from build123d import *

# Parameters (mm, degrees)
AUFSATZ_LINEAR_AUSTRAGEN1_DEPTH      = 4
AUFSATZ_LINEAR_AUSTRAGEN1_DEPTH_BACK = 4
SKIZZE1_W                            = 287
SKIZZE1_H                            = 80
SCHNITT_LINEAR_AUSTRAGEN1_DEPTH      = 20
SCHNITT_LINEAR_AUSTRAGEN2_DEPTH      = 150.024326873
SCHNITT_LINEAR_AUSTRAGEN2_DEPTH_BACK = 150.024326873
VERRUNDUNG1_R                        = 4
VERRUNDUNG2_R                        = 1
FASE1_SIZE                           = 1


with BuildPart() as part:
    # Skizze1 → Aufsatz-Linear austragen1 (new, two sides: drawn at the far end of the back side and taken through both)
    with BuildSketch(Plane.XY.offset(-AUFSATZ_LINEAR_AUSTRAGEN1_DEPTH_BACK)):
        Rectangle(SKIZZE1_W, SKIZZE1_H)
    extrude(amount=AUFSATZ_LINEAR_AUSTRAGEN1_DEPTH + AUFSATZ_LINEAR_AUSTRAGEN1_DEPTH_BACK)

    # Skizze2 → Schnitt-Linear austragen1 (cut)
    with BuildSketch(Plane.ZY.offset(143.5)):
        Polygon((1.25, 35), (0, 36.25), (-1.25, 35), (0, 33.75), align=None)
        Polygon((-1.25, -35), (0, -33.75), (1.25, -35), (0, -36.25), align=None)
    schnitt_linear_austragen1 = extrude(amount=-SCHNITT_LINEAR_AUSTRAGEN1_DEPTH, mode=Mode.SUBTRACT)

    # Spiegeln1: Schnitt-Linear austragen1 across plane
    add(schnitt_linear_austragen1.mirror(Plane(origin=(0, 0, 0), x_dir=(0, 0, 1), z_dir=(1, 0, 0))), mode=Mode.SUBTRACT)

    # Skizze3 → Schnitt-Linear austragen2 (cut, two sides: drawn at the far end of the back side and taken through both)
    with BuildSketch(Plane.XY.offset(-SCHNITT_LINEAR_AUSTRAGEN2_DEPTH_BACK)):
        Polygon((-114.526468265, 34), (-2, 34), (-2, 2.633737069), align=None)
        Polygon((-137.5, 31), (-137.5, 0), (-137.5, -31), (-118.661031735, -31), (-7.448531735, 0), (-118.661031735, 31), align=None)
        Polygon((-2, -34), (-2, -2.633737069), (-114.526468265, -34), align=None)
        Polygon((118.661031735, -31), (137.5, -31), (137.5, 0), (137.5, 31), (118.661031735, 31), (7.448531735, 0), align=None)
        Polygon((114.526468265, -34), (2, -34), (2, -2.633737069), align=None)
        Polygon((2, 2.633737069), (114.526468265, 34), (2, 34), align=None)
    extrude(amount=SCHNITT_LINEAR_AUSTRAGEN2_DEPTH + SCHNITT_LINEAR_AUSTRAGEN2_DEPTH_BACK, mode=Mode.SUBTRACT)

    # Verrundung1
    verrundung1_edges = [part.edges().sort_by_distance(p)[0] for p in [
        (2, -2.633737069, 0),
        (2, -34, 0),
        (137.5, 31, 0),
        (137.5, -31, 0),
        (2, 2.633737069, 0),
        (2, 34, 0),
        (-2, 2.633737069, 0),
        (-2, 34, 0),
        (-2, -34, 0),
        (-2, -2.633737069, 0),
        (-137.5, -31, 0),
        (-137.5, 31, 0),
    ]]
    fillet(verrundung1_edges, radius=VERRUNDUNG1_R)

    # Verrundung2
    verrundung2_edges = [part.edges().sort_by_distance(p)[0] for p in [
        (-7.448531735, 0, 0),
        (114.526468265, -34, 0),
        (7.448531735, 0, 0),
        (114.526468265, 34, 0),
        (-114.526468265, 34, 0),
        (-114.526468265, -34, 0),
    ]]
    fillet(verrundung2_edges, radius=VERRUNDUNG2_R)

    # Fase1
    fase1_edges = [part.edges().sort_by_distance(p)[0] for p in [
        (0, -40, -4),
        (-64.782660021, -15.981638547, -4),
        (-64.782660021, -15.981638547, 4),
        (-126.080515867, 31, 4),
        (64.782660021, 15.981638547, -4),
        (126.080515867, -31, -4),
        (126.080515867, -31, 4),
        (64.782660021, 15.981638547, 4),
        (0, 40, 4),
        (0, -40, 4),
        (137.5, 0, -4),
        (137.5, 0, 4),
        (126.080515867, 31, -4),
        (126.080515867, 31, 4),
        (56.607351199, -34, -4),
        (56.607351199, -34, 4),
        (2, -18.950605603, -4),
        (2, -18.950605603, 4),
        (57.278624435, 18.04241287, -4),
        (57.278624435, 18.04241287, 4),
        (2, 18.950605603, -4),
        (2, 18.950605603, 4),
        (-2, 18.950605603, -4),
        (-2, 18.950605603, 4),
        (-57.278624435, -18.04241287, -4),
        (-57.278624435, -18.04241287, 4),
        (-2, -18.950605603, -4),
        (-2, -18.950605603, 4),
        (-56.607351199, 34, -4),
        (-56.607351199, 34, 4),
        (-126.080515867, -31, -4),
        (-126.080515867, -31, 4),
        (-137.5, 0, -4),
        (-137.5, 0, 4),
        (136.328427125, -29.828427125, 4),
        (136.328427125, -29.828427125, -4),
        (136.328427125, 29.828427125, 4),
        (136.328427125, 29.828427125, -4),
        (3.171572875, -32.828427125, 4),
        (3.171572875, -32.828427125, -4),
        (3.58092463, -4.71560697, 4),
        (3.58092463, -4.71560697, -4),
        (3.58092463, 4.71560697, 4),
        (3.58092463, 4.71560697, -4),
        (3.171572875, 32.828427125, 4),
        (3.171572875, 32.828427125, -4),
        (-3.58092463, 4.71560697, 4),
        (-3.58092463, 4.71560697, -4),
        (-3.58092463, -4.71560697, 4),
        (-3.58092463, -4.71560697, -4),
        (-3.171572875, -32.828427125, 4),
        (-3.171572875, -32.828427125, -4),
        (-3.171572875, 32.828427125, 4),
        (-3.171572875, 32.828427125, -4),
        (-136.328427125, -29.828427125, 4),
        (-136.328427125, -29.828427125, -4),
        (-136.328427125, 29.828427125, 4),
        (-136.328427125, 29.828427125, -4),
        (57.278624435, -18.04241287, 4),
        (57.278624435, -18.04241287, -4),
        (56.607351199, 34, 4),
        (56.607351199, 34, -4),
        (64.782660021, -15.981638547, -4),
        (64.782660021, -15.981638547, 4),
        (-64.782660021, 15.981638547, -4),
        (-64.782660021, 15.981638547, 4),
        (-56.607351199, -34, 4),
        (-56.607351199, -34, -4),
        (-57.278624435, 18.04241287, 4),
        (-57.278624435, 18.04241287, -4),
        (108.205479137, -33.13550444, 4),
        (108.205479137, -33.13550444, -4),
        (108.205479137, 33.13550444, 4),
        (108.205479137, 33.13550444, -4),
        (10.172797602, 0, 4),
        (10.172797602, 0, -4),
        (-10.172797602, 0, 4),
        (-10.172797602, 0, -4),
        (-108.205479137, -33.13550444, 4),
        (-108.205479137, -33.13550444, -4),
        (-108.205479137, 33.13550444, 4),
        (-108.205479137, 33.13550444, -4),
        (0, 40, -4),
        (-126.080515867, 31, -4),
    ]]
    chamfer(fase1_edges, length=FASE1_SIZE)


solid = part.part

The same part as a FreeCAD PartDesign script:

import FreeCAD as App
import Part
import Sketcher
from FreeCAD import Vector
Q = App.Units.Quantity


def edges_at(feature, points):
    """Names of the edges that pass closest to the given points."""
    edges = feature.Shape.Edges
    near = lambda p: min(range(len(edges)), key=lambda i: edges[i].distToShape(Part.Vertex(*p))[0])
    return sorted({f"Edge{near(p) + 1}" for p in points})


def add_polygon(sketch, points):
    """Adds a closed chain of lines whose ends are joined by coincident constraints."""
    first, n = sketch.GeometryCount, len(points)
    for a, b in zip(points, points[1:] + points[:1]):
        sketch.addGeometry(Part.LineSegment(App.Vector(*a, 0), App.Vector(*b, 0)), False)
    for i in range(n):
        sketch.addConstraint(Sketcher.Constraint("Coincident", first + i, 2, first + (i + 1) % n, 1))

doc = App.newDocument("Part")
params = doc.addObject("Spreadsheet::Sheet", "Params")
for row, (alias, value) in enumerate([
    ("sketch1_width", "287 mm"),
    ("sketch1_height", "80 mm"),
    ("pad1_length", "4 mm"),
    ("pad1_length2", "4 mm"),
    ("pocket1_length", "20 mm"),
    ("sketch3_height", "62 mm"),
    ("fillet_radius", "4 mm"),
    ("fillet2_radius", "1 mm"),
    ("chamfer_size", "1 mm"),
], start=1):
    params.set(f"A{row}", alias)
    params.set(f"B{row}", "=" + value)
    params.setAlias(f"B{row}", alias)

body = doc.addObject("PartDesign::Body", "Body")

sketch1 = body.newObject("Sketcher::SketchObject", "Sketch")
sketch1.AttachmentSupport = (doc.getObject("XY_Plane"), [""])
sketch1.MapMode = "FlatFace"
add_polygon(sketch1, [(-144, 40), (-144, -40), (144, -40), (144, 40)])
sketch1.addConstraint([
    Sketcher.Constraint("Vertical", 0),
    Sketcher.Constraint("Horizontal", 1),
    Sketcher.Constraint("Vertical", 2),
    Sketcher.Constraint("Horizontal", 3),
    Sketcher.Constraint("Symmetric", 0, 2, 2, 2, -1, 1),
    Sketcher.Constraint("DistanceX", 1, 1, 1, 2, Q("287 mm")),
    Sketcher.Constraint("DistanceY", 0, 2, 0, 1, Q("80 mm")),
])
sketch1.setExpression("Constraints[9]", "Params.sketch1_width")
sketch1.setExpression("Constraints[10]", "Params.sketch1_height")
pad1 = body.newObject("PartDesign::Pad", "Pad")
pad1.Profile = sketch1
pad1.Type = "TwoLengths"
pad1.setExpression("Length", "Params.pad1_length")
pad1.setExpression("Length2", "Params.pad1_length2")

sketch2 = body.newObject("Sketcher::SketchObject", "Sketch001")
sketch2.AttachmentSupport = (doc.getObject("YZ_Plane"), [""])
sketch2.MapMode = "FlatFace"
sketch2.AttachmentOffset = App.Placement(Vector(0, 0, -143.5), App.Rotation())
add_polygon(sketch2, [(35, 1.2), (36.2, 0), (35, -1.2), (33.8, 0)])
add_polygon(sketch2, [(-33.8, 0), (-35, -1.2), (-36.2, 0), (-35, 1.2)])
sketch2.addConstraint([
    Sketcher.Constraint("Symmetric", 3, 2, 4, 2, -1, 1),
    Sketcher.Constraint("Symmetric", 0, 2, 5, 2, -1, 1),
    Sketcher.Constraint("Symmetric", 1, 2, 6, 2, -1, 1),
    Sketcher.Constraint("Symmetric", 2, 2, 7, 2, -1, 1),
    Sketcher.Constraint("Symmetric", 1, 2, 4, 2, -2),
    Sketcher.Constraint("PointOnObject", 0, 2, -1),
    Sketcher.Constraint("PointOnObject", 2, 2, -1),
    Sketcher.Constraint("Perpendicular", 0, 1),
    Sketcher.Constraint("Perpendicular", 1, 2),
    Sketcher.Constraint("DistanceX", -1, 1, 1, 2, Q("35 mm")),
    Sketcher.Constraint("DistanceX", 2, 2, 0, 2, Q("2.5 mm")),
])
pocket1 = body.newObject("PartDesign::Pocket", "Pocket")
pocket1.Profile = sketch2
pocket1.setExpression("Length", "Params.pocket1_length")
pocket1.Reversed = True
doc.recompute()

mirrored = body.newObject("PartDesign::Mirrored", "Mirrored")
mirrored.Originals = [pocket1]
mirrored.MirrorPlane = (doc.getObject("YZ_Plane"), [""])
body.Tip = mirrored

sketch3 = body.newObject("Sketcher::SketchObject", "Sketch002")
sketch3.AttachmentSupport = (doc.getObject("XY_Plane"), [""])
sketch3.MapMode = "FlatFace"
add_polygon(sketch3, [(-2, 34), (-115, 34), (-2, 3)])
add_polygon(sketch3, [(-138, 31), (-138, -31), (-119, -31), (-7, 0), (-119, 31)])
add_polygon(sketch3, [(-2, -34), (-2, -3), (-115, -34)])
add_polygon(sketch3, [(119, -31), (138, -31), (138, 31), (119, 31), (7, 0)])
add_polygon(sketch3, [(2, -34), (115, -34), (2, -3)])
add_polygon(sketch3, [(2, 3), (115, 34), (2, 34)])
sketch3.addConstraint([
    Sketcher.Constraint("Horizontal", 0),
    Sketcher.Constraint("Vertical", 2),
    Sketcher.Constraint("Vertical", 3),
    Sketcher.Constraint("Horizontal", 4),
    Sketcher.Constraint("Horizontal", 7),
    Sketcher.Constraint("Vertical", 8),
    Sketcher.Constraint("Horizontal", 10),
    Sketcher.Constraint("Horizontal", 11),
    Sketcher.Constraint("Vertical", 12),
    Sketcher.Constraint("Horizontal", 13),
    Sketcher.Constraint("Horizontal", 16),
    Sketcher.Constraint("Vertical", 18),
    Sketcher.Constraint("Horizontal", 20),
    Sketcher.Constraint("Vertical", 21),
    Sketcher.Constraint("Symmetric", 7, 2, 11, 2, -1, 1),
    Sketcher.Constraint("Symmetric", 4, 2, 13, 2, -1, 1),
    Sketcher.Constraint("Symmetric", 5, 2, 14, 2, -1, 1),
    Sketcher.Constraint("Symmetric", 0, 2, 16, 2, -1, 1),
    Sketcher.Constraint("Symmetric", 1, 2, 17, 2, -1, 1),
    Sketcher.Constraint("Symmetric", 9, 2, 19, 2, -1, 1),
    Sketcher.Constraint("Symmetric", 8, 2, 21, 2, -1, 1),
    Sketcher.Constraint("Symmetric", 6, 2, 13, 2, -2),
    Sketcher.Constraint("Symmetric", 9, 2, 16, 2, -2),
    Sketcher.Constraint("Symmetric", 8, 2, 17, 2, -2),
    Sketcher.Constraint("PointOnObject", 5, 2, -1),
    Sketcher.Constraint("Parallel", 1, 6),
    Sketcher.Constraint("Parallel", 6, 15),
    Sketcher.Constraint("DistanceY", 3, 2, 3, 1, Q("62 mm")),
    Sketcher.Constraint("DistanceY", -1, 1, 0, 2, Q("34 mm")),
    Sketcher.Constraint("DistanceX", 1, 2, -1, 1, Q("2 mm")),
    Sketcher.Constraint("DistanceX", 3, 2, -1, 1, Q("137.5 mm")),
    Sketcher.Constraint("DistanceX", 0, 2, 0, 1, Q("112.526468 mm")),
    Sketcher.Constraint("DistanceX", 4, 1, 4, 2, Q("18.838968 mm")),
    Sketcher.Constraint("DistanceX", 4, 2, 5, 2, Q("111.2125 mm")),
])
sketch3.setExpression("Constraints[49]", "Params.sketch3_height")
pocket2 = body.newObject("PartDesign::Pocket", "Pocket001")
pocket2.Profile = sketch3
pocket2.Type = "ThroughAll"
pocket2.Midplane = True
doc.recompute()

fillet = body.newObject("PartDesign::Fillet", "Fillet")
fillet.Base = (pocket2, edges_at(pocket2, [
    (2, -2.634, 0),
    (2, -34, 0),
    (137.5, 31, 0),
    (137.5, -31, 0),
    (2, 2.634, 0),
    (2, 34, 0),
    (-2, 2.634, 0),
    (-2, 34, 0),
    (-2, -34, 0),
    (-2, -2.634, 0),
    (-137.5, -31, 0),
    (-137.5, 31, 0),
]))
fillet.setExpression("Radius", "Params.fillet_radius")
doc.recompute()

fillet2 = body.newObject("PartDesign::Fillet", "Fillet001")
fillet2.Base = (fillet, edges_at(fillet, [
    (-7.449, 0, 0),
    (114.526, -34, 0),
    (7.449, 0, 0),
    (114.526, 34, 0),
    (-114.526, 34, 0),
    (-114.526, -34, 0),
]))
fillet2.setExpression("Radius", "Params.fillet2_radius")
doc.recompute()

chamfer = body.newObject("PartDesign::Chamfer", "Chamfer")
chamfer.Base = (fillet2, edges_at(fillet2, [
    (0, -40, -4),
    (-64.783, -15.982, -4),
    (-64.783, -15.982, 4),
    (-126.081, 31, 4),
    (64.783, 15.982, -4),
    (126.081, -31, -4),
    (126.081, -31, 4),
    (64.783, 15.982, 4),
    (0, 40, 4),
    (0, -40, 4),
    (137.5, 0, -4),
    (137.5, 0, 4),
    (126.081, 31, -4),
    (126.081, 31, 4),
    (56.607, -34, -4),
    (56.607, -34, 4),
    (2, -18.951, -4),
    (2, -18.951, 4),
    (57.279, 18.042, -4),
    (57.279, 18.042, 4),
    (2, 18.951, -4),
    (2, 18.951, 4),
    (-2, 18.951, -4),
    (-2, 18.951, 4),
    (-57.279, -18.042, -4),
    (-57.279, -18.042, 4),
    (-2, -18.951, -4),
    (-2, -18.951, 4),
    (-56.607, 34, -4),
    (-56.607, 34, 4),
    (-126.081, -31, -4),
    (-126.081, -31, 4),
    (-137.5, 0, -4),
    (-137.5, 0, 4),
    (136.328, -29.828, 4),
    (136.328, -29.828, -4),
    (136.328, 29.828, 4),
    (136.328, 29.828, -4),
    (3.172, -32.828, 4),
    (3.172, -32.828, -4),
    (3.581, -4.716, 4),
    (3.581, -4.716, -4),
    (3.581, 4.716, 4),
    (3.581, 4.716, -4),
    (3.172, 32.828, 4),
    (3.172, 32.828, -4),
    (-3.581, 4.716, 4),
    (-3.581, 4.716, -4),
    (-3.581, -4.716, 4),
    (-3.581, -4.716, -4),
    (-3.172, -32.828, 4),
    (-3.172, -32.828, -4),
    (-3.172, 32.828, 4),
    (-3.172, 32.828, -4),
    (-136.328, -29.828, 4),
    (-136.328, -29.828, -4),
    (-136.328, 29.828, 4),
    (-136.328, 29.828, -4),
    (57.279, -18.042, 4),
    (57.279, -18.042, -4),
    (56.607, 34, 4),
    (56.607, 34, -4),
    (64.783, -15.982, -4),
    (64.783, -15.982, 4),
    (-64.783, 15.982, -4),
    (-64.783, 15.982, 4),
    (-56.607, -34, 4),
    (-56.607, -34, -4),
    (-57.279, 18.042, 4),
    (-57.279, 18.042, -4),
    (108.205, -33.136, 4),
    (108.205, -33.136, -4),
    (108.205, 33.136, 4),
    (108.205, 33.136, -4),
    (10.173, 0, 4),
    (10.173, 0, -4),
    (-10.173, 0, 4),
    (-10.173, 0, -4),
    (-108.205, -33.136, 4),
    (-108.205, -33.136, -4),
    (-108.205, 33.136, 4),
    (-108.205, 33.136, -4),
    (0, 40, -4),
    (-126.081, 31, -4),
]))
chamfer.setExpression("Size", "Params.chamfer_size")

doc.recompute()
